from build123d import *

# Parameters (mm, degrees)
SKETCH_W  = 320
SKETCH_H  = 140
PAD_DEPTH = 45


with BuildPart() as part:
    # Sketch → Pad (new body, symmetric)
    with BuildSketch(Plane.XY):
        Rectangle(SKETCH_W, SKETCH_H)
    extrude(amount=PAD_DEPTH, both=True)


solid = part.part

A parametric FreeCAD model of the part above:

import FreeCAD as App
import Part
import Sketcher

V = App.Vector

doc = App.newDocument("Part")
params = doc.addObject("Spreadsheet::Sheet", "Params")
for row, (alias, value) in enumerate([
    ("sketch1_width", "320 mm"),
    ("sketch1_height", "140 mm"),
    ("pad1_length", "90 mm"),
], start=1):
    params.set(f"A{row}", alias)
    params.set(f"B{row}", "=" + value)
    params.setAlias(f"B{row}", alias)

body = doc.addObject("PartDesign::Body", "Body")

sketch1 = body.newObject("Sketcher::SketchObject", "Sketch")
sketch1.AttachmentSupport = (doc.getObject("XY_Plane"), [""])
sketch1.MapMode = "FlatFace"
sketch1.addGeometry(Part.LineSegment(V(-160, 70, 0), V(-160, -70, 0)), False)
sketch1.addGeometry(Part.LineSegment(V(-160, -70, 0), V(160, -70, 0)), False)
sketch1.addGeometry(Part.LineSegment(V(160, -70, 0), V(160, 70, 0)), False)
sketch1.addGeometry(Part.LineSegment(V(160, 70, 0), V(-160, 70, 0)), False)
sketch1.addConstraint(Sketcher.Constraint("Coincident", 0, 2, 1, 1))
sketch1.addConstraint(Sketcher.Constraint("Coincident", 1, 2, 2, 1))
sketch1.addConstraint(Sketcher.Constraint("Coincident", 2, 2, 3, 1))
sketch1.addConstraint(Sketcher.Constraint("Coincident", 3, 2, 0, 1))
sketch1.addConstraint(Sketcher.Constraint("Vertical", 0))
sketch1.addConstraint(Sketcher.Constraint("Horizontal", 1))
sketch1.addConstraint(Sketcher.Constraint("Vertical", 2))
sketch1.addConstraint(Sketcher.Constraint("Horizontal", 3))
sketch1.addConstraint(Sketcher.Constraint("Symmetric", 0, 2, 2, 2, -1, 1))
sketch1.addConstraint(Sketcher.Constraint("DistanceX", 1, 1, 1, 2, 320.0))
sketch1.addConstraint(Sketcher.Constraint("DistanceY", 0, 2, 0, 1, 140.0))
sketch1.setExpression("Constraints[9]", "Params.sketch1_width")
sketch1.setExpression("Constraints[10]", "Params.sketch1_height")
pad1 = body.newObject("PartDesign::Pad", "Pad")
pad1.Profile = sketch1
pad1.setExpression("Length", "Params.pad1_length")
pad1.Midplane = True

doc.recompute()
